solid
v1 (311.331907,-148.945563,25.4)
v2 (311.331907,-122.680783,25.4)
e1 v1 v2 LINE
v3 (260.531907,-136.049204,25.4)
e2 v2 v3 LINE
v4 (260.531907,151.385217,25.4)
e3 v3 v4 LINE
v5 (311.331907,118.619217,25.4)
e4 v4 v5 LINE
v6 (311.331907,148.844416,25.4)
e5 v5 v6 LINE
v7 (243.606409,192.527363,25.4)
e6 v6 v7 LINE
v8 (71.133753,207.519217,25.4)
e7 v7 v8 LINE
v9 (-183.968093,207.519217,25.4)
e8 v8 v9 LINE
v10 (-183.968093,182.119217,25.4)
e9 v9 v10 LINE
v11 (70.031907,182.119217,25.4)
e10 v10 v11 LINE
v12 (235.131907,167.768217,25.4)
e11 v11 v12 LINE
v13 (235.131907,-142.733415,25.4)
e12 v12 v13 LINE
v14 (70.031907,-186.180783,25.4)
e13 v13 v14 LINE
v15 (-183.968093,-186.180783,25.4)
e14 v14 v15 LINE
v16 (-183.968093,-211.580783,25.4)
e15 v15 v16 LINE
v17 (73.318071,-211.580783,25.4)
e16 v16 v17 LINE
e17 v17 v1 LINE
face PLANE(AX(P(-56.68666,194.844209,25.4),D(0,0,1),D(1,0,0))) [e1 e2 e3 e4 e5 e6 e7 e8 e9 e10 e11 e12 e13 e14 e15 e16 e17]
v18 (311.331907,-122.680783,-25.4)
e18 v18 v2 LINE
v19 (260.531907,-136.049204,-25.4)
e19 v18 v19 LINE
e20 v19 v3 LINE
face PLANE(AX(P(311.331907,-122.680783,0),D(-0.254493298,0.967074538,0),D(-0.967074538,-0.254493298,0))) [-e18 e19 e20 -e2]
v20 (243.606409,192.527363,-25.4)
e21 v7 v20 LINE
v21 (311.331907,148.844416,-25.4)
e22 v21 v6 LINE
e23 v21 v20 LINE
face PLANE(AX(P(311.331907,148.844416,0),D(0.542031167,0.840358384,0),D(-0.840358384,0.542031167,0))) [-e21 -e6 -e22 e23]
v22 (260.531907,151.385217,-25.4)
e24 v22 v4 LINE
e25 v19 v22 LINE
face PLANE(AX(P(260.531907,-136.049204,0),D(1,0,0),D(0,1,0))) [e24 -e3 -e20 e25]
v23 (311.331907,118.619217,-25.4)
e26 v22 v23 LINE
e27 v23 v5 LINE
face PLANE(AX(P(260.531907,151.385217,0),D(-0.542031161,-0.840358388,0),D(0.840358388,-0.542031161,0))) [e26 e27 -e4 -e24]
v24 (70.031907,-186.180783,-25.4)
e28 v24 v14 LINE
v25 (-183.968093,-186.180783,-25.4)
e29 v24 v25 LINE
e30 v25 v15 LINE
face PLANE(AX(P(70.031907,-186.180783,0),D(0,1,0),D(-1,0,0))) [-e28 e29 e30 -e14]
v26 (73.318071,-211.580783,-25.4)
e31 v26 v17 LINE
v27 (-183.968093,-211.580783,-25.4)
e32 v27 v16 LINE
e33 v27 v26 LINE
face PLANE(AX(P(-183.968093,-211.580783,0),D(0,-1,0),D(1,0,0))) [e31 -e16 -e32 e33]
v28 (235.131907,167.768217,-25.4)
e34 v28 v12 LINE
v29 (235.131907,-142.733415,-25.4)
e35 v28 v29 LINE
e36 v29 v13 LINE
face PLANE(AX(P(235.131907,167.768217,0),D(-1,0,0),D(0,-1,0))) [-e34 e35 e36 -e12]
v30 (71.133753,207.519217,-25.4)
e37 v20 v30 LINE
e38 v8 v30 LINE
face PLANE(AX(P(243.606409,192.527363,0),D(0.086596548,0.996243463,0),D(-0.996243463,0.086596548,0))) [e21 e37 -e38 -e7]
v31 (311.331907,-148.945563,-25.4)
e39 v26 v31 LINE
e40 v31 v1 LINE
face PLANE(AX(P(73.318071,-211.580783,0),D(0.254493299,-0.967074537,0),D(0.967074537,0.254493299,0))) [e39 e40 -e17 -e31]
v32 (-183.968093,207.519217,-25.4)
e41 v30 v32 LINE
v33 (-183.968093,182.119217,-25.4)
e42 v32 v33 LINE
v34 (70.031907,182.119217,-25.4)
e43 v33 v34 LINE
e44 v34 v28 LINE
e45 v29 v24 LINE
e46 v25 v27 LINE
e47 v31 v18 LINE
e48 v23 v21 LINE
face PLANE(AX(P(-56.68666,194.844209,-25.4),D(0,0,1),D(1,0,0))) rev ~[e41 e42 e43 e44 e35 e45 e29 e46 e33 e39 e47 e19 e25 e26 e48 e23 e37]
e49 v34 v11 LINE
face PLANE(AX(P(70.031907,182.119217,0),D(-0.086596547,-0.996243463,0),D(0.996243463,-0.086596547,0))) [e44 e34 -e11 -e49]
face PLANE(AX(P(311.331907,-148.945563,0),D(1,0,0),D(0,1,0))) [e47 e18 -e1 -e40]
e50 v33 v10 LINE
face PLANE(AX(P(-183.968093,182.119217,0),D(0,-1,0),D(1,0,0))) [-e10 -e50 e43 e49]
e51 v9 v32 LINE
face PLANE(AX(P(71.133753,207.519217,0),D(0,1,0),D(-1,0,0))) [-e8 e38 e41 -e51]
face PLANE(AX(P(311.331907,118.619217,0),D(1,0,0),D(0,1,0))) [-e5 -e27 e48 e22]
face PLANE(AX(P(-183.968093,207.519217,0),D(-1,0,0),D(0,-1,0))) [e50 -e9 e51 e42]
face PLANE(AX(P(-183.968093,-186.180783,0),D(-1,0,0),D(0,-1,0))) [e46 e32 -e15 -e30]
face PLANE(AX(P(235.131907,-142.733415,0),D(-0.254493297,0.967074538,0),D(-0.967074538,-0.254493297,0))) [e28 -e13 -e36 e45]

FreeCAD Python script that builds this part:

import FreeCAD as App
import Part
import Sketcher
Q = App.Units.Quantity


def add_polygon(sketch, points):
    """Adds a closed chain of lines whose ends are joined by coincident constraints."""
    first, n = sketch.GeometryCount, len(points)
    for a, b in zip(points, points[1:] + points[:1]):
        sketch.addGeometry(Part.LineSegment(App.Vector(*a, 0), App.Vector(*b, 0)), False)
    for i in range(n):
        sketch.addConstraint(Sketcher.Constraint("Coincident", first + i, 2, first + (i + 1) % n, 1))

doc = App.newDocument("Part")
body = doc.addObject("PartDesign::Body", "Body")

# Sketch on XY plane
sketch1 = body.newObject("Sketcher::SketchObject", "Sketch")
sketch1.AttachmentSupport = (doc.getObject("XY_Plane"), [""])
sketch1.MapMode = "FlatFace"
add_polygon(sketch1, [(-183.968093, 207.519217), (-183.968093, 182.119217), (70.031907, 182.119217), (235.131907, 167.768217), (235.131907, -142.733415), (70.031907, -186.180783), (-183.968093, -186.180783), (-183.968093, -211.580783), (73.318071, -211.580783), (311.331907, -148.945563), (311.331907, -122.680783), (260.531907, -136.049204), (260.531907, 151.385217), (311.331907, 118.619217), (311.331907, 148.844416), (243.606409, 192.527363), (71.133753, 207.519217)])  # lines 0-16
sketch1.addConstraint([
    Sketcher.Constraint("Vertical", 0),
    Sketcher.Constraint("Horizontal", 1),
    Sketcher.Constraint("Vertical", 3),
    Sketcher.Constraint("Horizontal", 5),
    Sketcher.Constraint("Vertical", 6),
    Sketcher.Constraint("Horizontal", 7),
    Sketcher.Constraint("Vertical", 9),
    Sketcher.Constraint("Vertical", 11),
    Sketcher.Constraint("Vertical", 13),
    Sketcher.Constraint("Horizontal", 16),
    Sketcher.Constraint("Parallel", 4, 8),
    Sketcher.Constraint("Parallel", 8, 10),
    Sketcher.Constraint("Parallel", 12, 14),
    Sketcher.Constraint("Parallel", 2, 15),
    Sketcher.Constraint("Vertical", 1, 2, 4, 2),
    Sketcher.Constraint("Vertical", 0, 2, 5, 2),
    Sketcher.Constraint("Vertical", 9, 2, 12, 2),
    Sketcher.Constraint("Equal", 0, 6),
    Sketcher.Constraint("DistanceX", 1, 1, 1, 2, Q("10 in")),
    Sketcher.Constraint("DistanceY", 0, 2, 0, 1, Q("1 in")),
    Sketcher.Constraint("DistanceX", 3, 2, 8, 2, Q("3 in")),
    Sketcher.Constraint("DistanceX", 3, 2, 10, 2, Q("1 in")),
    Sketcher.Constraint("DistanceX", 1, 2, 2, 2, Q("6.5 in")),
    Sketcher.Constraint("DistanceY", 4, 2, 1, 2, Q("14.5 in")),
    Sketcher.Constraint("DistanceY", 4, 2, 9, 2, Q("2.5 in")),
    Sketcher.Constraint("DistanceY", 9, 2, 12, 2, Q("9.5 in")),
    Sketcher.Constraint("DistanceY", 11, 2, 1, 2, Q("1.21 in")),
    Sketcher.Constraint("DistanceY", 2, 2, 1, 2, Q("0.565 in")),
    Sketcher.Constraint("DistanceY", 13, 1, 13, 2, 30.225199),
    Sketcher.Constraint("Distance", 15, 173.122999),
    Sketcher.Constraint("DistanceY", 3, 2, 3, 1, 310.501632),
    Sketcher.Constraint("DistanceY", 9, 1, 9, 2, 26.26478),
    Sketcher.Constraint("DistanceX", -1, 1, 7, 2, 73.318071),
    Sketcher.Constraint("DistanceY", -1, 1, 0, 2, 182.119217),
])
pad1 = body.newObject("PartDesign::Pad", "Pad")
pad1.Profile = sketch1
pad1.Length = Q("2 in")
pad1.Midplane = True

doc.recompute()
